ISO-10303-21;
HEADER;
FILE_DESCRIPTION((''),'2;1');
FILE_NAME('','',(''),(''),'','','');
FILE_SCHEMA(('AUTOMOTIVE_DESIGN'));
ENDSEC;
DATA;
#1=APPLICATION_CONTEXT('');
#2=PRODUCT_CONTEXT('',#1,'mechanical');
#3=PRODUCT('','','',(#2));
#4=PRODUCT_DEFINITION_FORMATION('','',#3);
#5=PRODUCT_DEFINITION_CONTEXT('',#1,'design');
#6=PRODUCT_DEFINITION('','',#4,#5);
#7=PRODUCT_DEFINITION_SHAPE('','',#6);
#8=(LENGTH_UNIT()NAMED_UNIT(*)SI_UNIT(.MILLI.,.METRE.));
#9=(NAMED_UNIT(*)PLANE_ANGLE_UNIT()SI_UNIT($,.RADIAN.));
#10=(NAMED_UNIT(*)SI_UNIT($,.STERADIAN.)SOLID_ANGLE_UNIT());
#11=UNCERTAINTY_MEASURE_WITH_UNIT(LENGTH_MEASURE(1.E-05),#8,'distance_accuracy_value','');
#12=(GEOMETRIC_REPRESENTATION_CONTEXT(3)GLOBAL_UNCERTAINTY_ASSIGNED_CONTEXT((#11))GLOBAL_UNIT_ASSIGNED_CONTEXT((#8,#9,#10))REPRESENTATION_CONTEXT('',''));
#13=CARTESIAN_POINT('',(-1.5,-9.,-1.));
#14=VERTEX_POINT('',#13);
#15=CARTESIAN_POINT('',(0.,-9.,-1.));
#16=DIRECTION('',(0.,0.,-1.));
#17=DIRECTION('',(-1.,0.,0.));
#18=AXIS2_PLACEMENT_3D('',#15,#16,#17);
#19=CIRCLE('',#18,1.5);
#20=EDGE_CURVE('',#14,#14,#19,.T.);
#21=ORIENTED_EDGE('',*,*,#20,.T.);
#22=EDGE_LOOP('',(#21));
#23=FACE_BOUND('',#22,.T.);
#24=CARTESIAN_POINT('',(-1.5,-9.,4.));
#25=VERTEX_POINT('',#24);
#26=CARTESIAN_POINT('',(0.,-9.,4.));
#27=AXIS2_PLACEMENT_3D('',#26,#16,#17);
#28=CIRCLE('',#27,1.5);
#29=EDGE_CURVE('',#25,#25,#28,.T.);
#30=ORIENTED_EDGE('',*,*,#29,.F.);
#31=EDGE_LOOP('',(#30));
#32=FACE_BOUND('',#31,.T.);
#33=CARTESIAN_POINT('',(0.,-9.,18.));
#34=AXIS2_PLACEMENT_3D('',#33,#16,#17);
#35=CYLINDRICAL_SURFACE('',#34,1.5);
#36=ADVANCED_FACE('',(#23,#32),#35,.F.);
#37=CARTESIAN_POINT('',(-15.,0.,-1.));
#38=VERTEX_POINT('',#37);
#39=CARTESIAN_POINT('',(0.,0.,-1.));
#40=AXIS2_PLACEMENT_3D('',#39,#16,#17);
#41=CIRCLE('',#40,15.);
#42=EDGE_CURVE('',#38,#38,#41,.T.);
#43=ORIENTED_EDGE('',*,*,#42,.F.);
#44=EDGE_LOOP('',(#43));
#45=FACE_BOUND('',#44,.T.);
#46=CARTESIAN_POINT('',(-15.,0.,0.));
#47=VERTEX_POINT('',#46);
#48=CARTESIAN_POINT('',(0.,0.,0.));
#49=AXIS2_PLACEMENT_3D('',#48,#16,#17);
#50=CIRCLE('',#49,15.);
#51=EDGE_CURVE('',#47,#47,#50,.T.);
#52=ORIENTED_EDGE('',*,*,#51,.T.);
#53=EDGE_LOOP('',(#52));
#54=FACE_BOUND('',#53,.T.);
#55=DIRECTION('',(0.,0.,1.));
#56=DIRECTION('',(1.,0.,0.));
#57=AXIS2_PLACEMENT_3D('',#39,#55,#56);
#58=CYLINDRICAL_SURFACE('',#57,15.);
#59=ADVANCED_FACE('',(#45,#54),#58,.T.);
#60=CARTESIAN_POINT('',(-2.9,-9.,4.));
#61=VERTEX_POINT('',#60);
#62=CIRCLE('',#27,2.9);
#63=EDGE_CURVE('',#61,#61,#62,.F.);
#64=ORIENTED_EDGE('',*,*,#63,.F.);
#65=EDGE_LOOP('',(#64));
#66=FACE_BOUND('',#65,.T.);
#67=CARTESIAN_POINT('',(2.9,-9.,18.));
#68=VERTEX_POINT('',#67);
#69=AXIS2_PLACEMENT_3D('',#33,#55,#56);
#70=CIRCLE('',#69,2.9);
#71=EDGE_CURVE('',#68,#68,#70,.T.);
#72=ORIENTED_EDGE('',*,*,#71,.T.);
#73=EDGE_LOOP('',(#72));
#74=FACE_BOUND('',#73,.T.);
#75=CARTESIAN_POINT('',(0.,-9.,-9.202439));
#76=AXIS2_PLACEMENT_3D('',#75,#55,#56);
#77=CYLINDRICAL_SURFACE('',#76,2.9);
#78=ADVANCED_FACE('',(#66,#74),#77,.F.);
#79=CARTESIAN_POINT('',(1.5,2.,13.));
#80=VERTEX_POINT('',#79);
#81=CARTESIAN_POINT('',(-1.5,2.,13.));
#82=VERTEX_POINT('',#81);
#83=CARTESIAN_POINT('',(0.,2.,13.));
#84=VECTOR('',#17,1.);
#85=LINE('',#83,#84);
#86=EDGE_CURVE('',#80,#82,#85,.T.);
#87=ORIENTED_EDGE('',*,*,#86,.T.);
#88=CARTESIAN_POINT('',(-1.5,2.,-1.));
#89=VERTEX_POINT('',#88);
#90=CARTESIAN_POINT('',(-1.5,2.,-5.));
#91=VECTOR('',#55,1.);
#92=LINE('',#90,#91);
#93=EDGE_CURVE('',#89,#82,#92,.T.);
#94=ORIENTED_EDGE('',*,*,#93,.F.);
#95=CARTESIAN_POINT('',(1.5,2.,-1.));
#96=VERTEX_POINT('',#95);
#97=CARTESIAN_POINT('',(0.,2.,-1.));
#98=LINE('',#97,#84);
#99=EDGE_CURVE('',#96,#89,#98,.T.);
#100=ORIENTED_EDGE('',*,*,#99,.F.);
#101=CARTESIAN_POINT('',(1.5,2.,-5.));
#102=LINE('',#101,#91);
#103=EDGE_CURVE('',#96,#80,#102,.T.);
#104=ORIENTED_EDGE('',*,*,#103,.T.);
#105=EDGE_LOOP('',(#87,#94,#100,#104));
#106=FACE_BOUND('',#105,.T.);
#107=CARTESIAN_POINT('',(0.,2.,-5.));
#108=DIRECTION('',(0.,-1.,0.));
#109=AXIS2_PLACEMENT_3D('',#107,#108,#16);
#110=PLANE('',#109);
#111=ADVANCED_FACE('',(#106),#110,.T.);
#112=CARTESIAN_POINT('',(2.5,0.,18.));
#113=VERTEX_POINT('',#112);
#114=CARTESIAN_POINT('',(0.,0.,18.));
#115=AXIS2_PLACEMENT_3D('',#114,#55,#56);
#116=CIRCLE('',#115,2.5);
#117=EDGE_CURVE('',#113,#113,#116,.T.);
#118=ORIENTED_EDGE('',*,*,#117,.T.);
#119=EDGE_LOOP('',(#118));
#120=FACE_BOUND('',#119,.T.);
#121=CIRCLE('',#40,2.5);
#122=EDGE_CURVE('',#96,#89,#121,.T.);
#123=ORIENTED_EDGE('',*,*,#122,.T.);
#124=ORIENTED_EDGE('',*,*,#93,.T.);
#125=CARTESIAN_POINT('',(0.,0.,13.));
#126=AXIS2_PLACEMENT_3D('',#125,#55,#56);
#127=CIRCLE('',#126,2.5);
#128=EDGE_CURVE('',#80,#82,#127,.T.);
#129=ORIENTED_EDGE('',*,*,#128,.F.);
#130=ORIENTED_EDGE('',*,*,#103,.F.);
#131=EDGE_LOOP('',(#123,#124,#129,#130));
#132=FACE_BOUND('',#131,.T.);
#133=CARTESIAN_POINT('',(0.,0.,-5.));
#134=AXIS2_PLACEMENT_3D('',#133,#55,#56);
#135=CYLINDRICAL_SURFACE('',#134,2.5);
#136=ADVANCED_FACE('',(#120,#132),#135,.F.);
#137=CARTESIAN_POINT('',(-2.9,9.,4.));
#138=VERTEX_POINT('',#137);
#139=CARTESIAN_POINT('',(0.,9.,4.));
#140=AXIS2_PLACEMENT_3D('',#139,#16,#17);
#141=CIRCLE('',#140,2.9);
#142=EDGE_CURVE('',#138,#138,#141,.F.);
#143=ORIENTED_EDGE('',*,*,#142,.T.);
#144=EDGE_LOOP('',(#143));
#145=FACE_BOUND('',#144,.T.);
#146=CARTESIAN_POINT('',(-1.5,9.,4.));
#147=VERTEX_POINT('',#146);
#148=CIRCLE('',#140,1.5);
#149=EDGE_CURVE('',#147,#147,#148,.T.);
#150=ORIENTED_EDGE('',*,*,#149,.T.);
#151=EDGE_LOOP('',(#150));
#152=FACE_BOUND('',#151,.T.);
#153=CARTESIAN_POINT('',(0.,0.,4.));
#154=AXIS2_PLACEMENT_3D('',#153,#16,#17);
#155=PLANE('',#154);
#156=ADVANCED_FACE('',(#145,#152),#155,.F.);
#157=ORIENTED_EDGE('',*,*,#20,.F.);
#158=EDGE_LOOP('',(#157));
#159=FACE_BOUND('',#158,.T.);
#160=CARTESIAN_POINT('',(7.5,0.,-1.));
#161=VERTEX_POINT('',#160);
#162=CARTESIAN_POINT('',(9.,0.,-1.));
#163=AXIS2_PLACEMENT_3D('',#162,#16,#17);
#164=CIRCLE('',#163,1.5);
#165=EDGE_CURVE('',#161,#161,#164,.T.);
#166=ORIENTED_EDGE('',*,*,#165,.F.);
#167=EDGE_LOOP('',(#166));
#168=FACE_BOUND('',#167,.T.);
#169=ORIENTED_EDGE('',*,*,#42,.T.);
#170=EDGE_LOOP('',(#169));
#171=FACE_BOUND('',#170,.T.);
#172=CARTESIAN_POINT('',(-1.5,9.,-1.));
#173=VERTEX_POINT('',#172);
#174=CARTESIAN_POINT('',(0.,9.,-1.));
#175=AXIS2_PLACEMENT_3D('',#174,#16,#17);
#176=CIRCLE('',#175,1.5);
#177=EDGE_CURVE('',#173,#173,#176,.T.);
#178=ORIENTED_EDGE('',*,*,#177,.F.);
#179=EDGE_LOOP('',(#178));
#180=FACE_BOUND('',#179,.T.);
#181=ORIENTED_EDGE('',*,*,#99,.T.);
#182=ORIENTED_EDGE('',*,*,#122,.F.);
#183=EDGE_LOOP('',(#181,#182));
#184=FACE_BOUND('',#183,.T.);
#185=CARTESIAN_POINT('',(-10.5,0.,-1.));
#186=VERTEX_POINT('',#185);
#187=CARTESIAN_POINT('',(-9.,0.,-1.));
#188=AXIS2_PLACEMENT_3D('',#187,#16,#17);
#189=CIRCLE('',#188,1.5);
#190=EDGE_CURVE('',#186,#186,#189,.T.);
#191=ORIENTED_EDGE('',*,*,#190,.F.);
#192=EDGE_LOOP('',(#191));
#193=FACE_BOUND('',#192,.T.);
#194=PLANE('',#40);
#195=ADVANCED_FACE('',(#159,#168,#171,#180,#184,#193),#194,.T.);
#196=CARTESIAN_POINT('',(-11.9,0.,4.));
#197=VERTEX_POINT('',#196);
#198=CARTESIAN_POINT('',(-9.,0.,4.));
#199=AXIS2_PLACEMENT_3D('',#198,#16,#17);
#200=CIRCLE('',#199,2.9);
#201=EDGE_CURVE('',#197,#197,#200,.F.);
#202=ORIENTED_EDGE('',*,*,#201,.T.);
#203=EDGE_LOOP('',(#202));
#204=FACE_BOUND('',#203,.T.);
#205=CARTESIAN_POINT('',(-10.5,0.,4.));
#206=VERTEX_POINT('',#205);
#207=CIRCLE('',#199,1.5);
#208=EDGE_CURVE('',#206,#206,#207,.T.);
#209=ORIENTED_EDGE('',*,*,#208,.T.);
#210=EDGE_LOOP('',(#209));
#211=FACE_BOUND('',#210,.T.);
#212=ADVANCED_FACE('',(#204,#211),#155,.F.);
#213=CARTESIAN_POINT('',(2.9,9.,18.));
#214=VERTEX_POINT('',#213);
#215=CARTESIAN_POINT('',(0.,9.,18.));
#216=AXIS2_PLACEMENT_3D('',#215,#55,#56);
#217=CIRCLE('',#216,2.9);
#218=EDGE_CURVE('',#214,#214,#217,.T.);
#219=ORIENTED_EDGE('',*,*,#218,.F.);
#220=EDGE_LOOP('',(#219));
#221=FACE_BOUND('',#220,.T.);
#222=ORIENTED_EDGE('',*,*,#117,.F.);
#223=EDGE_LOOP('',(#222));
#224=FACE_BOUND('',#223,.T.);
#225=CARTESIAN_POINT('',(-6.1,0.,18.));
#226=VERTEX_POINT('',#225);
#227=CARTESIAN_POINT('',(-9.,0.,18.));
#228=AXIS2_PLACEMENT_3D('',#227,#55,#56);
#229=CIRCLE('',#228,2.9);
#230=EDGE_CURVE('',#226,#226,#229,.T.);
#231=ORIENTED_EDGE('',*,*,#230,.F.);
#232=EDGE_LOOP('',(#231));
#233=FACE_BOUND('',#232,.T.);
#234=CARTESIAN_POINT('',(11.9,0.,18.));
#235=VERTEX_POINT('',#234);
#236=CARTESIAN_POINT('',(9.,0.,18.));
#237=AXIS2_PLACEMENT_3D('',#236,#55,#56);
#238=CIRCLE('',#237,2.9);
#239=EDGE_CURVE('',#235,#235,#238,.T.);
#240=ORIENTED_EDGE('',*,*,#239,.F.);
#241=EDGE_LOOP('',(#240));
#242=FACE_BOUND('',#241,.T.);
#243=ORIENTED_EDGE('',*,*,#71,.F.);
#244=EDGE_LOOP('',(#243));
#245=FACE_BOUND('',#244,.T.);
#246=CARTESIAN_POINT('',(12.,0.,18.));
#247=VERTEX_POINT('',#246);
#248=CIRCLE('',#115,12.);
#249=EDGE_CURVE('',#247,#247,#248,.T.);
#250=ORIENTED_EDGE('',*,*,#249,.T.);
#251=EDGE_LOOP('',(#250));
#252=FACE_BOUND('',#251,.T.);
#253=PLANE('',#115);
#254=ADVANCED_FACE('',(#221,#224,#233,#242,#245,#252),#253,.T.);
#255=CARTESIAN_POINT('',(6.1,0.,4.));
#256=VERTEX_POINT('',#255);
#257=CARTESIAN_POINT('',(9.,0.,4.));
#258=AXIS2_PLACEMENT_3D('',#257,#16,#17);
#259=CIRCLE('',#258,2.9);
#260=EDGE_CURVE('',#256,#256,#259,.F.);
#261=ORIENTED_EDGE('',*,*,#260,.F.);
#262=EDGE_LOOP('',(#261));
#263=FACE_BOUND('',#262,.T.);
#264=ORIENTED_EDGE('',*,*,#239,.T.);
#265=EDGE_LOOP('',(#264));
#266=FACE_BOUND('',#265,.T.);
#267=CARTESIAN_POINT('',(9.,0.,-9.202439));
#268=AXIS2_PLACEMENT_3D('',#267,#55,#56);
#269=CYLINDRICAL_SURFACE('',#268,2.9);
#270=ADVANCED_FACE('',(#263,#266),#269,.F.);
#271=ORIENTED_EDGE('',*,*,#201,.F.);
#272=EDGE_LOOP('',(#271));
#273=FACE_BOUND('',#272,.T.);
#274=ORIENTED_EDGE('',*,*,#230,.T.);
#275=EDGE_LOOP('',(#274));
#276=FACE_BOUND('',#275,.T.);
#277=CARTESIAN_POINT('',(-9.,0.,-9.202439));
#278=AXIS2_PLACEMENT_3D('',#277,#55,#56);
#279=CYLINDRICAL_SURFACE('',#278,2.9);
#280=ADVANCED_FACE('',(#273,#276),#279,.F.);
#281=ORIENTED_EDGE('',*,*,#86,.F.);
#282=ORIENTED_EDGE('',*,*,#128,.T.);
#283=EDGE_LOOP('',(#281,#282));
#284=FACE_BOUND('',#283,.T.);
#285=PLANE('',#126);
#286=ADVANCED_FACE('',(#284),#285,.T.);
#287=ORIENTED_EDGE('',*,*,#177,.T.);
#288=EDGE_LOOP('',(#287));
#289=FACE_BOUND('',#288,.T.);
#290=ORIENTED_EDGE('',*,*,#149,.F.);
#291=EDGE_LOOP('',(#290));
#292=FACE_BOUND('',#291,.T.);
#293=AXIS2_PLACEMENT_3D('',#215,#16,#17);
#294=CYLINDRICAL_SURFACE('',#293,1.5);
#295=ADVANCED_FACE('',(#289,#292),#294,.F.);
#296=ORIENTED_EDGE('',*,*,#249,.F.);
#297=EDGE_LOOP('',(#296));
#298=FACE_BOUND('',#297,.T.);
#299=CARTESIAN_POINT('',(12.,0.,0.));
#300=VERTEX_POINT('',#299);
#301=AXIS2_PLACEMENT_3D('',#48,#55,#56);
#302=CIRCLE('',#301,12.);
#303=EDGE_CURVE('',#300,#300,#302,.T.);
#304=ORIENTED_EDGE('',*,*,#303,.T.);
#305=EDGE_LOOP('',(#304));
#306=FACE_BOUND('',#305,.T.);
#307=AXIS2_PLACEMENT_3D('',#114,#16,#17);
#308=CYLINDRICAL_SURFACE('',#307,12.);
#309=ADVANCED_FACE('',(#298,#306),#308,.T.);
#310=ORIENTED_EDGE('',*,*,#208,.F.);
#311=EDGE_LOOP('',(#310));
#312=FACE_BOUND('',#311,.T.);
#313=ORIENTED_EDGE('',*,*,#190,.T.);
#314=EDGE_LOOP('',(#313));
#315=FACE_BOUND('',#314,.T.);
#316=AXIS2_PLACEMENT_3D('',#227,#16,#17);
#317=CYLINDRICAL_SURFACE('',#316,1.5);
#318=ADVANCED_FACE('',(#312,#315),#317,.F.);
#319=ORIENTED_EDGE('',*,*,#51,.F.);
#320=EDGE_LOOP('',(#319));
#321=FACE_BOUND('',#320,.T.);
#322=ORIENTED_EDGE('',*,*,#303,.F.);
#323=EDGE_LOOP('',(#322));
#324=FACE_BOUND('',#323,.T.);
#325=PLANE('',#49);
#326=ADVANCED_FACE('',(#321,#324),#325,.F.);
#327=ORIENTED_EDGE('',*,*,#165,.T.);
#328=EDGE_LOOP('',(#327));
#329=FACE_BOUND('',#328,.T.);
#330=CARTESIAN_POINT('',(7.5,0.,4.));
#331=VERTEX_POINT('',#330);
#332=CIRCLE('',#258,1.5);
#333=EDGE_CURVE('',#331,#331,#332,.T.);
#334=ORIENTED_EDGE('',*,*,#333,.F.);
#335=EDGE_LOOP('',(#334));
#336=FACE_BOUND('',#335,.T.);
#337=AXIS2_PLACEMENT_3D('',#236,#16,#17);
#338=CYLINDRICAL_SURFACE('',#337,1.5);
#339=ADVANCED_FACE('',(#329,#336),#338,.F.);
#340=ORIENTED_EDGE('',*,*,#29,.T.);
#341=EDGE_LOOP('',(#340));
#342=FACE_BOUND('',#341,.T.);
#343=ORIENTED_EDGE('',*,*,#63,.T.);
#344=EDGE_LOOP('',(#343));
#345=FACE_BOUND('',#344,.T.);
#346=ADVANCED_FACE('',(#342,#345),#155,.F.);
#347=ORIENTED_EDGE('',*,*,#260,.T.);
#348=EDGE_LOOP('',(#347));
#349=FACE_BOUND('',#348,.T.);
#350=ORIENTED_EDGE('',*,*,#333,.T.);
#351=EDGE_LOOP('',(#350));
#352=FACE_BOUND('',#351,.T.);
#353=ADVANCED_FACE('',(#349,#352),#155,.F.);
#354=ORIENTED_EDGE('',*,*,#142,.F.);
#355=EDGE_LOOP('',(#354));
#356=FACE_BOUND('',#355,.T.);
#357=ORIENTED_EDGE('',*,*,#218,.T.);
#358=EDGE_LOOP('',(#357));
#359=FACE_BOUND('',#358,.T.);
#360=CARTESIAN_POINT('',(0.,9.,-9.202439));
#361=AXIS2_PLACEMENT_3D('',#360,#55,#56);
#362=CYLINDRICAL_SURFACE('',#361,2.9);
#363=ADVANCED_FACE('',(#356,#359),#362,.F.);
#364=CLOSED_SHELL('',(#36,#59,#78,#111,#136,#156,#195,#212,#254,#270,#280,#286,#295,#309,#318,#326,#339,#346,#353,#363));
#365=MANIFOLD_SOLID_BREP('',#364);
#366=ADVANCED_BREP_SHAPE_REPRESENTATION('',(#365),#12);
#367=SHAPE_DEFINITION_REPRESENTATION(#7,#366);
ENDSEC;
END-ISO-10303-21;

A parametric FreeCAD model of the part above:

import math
import FreeCAD as App
import Part
import Sketcher

V = App.Vector
Q = App.Units.Quantity

doc = App.newDocument("Part")
body = doc.addObject("PartDesign::Body", "Body")

sketch1 = body.newObject("Sketcher::SketchObject", "Sketch")
sketch1.AttachmentSupport = (doc.getObject("XY_Plane"), [""])
sketch1.MapMode = "FlatFace"
sketch1.addGeometry(Part.Circle(V(0, 0, 0), V(0, 0, 1), 12), False)
sketch1.addGeometry(Part.Circle(V(0, -9, 0), V(0, 0, 1), 1.5), False)
sketch1.addGeometry(Part.Circle(V(-9, 0, 0), V(0, 0, 1), 1.5), False)
sketch1.addGeometry(Part.Circle(V(9, 0, 0), V(0, 0, 1), 1.5), False)
sketch1.addGeometry(Part.Circle(V(0, 9, 0), V(0, 0, 1), 1.5), False)
sketch1.addConstraint(Sketcher.Constraint("Coincident", 0, 3, -1, 1))
sketch1.addConstraint(Sketcher.Constraint("Equal", 1, 2))
sketch1.addConstraint(Sketcher.Constraint("Equal", 2, 3))
sketch1.addConstraint(Sketcher.Constraint("Equal", 3, 4))
sketch1.addConstraint(Sketcher.Constraint("Symmetric", 2, 3, 3, 3, -1, 1))
sketch1.addConstraint(Sketcher.Constraint("Symmetric", 1, 3, 4, 3, -1, 1))
sketch1.addConstraint(Sketcher.Constraint("PointOnObject", 1, 3, -2))
sketch1.addConstraint(Sketcher.Constraint("PointOnObject", 2, 3, -1))
sketch1.addConstraint(Sketcher.Constraint("Diameter", 0, Q("24 mm")))
sketch1.addConstraint(Sketcher.Constraint("Diameter", 1, Q("3 mm")))
sketch1.addConstraint(Sketcher.Constraint("DistanceY", 1, 3, -1, 1, Q("9 mm")))
sketch1.addConstraint(Sketcher.Constraint("DistanceX", 2, 3, -1, 1, Q("9 mm")))
pad1 = body.newObject("PartDesign::Pad", "Pad")
pad1.Profile = sketch1
pad1.Length = 18

sketch2 = body.newObject("Sketcher::SketchObject", "Sketch001")
sketch2.AttachmentSupport = (doc.getObject("XY_Plane"), [""])
sketch2.MapMode = "FlatFace"
sketch2.AttachmentOffset = App.Placement(V(0, 0, -1), App.Rotation())
sketch2.addGeometry(Part.Circle(V(0, 0, 0), V(0, 0, 1), 15), False)
sketch2.addGeometry(Part.Circle(V(0, -9, 0), V(0, 0, 1), 1.5), False)
sketch2.addGeometry(Part.Circle(V(9, 0, 0), V(0, 0, 1), 1.5), False)
sketch2.addGeometry(Part.Circle(V(-9, 0, 0), V(0, 0, 1), 1.5), False)
sketch2.addGeometry(Part.Circle(V(0, 9, 0), V(0, 0, 1), 1.5), False)
sketch2.addConstraint(Sketcher.Constraint("Coincident", 0, 3, -1, 1))
sketch2.addConstraint(Sketcher.Constraint("Equal", 1, 2))
sketch2.addConstraint(Sketcher.Constraint("Equal", 2, 3))
sketch2.addConstraint(Sketcher.Constraint("Equal", 3, 4))
sketch2.addConstraint(Sketcher.Constraint("Symmetric", 2, 3, 3, 3, -1, 1))
sketch2.addConstraint(Sketcher.Constraint("Symmetric", 1, 3, 4, 3, -1, 1))
sketch2.addConstraint(Sketcher.Constraint("PointOnObject", 1, 3, -2))
sketch2.addConstraint(Sketcher.Constraint("PointOnObject", 2, 3, -1))
sketch2.addConstraint(Sketcher.Constraint("Diameter", 0, Q("30 mm")))
sketch2.addConstraint(Sketcher.Constraint("Diameter", 1, Q("3 mm")))
sketch2.addConstraint(Sketcher.Constraint("DistanceY", 1, 3, -1, 1, Q("9 mm")))
sketch2.addConstraint(Sketcher.Constraint("DistanceX", -1, 1, 2, 3, Q("9 mm")))
pad2 = body.newObject("PartDesign::Pad", "Pad001")
pad2.Profile = sketch2
pad2.Length = 1

sketch3 = body.newObject("Sketcher::SketchObject", "Sketch002")
sketch3.AttachmentSupport = (doc.getObject("XY_Plane"), [""])
sketch3.MapMode = "FlatFace"
sketch3.AttachmentOffset = App.Placement(V(0, 0, 18), App.Rotation())
sketch3.addGeometry(Part.Circle(V(0, 9, 0), V(0, 0, 1), 2.9), False)
sketch3.addGeometry(Part.Circle(V(9, 0, 0), V(0, 0, 1), 2.9), False)
sketch3.addGeometry(Part.Circle(V(0, -9, 0), V(0, 0, 1), 2.9), False)
sketch3.addGeometry(Part.Circle(V(-9, 0, 0), V(0, 0, 1), 2.9), False)
sketch3.addConstraint(Sketcher.Constraint("Equal", 0, 1))
sketch3.addConstraint(Sketcher.Constraint("Equal", 1, 2))
sketch3.addConstraint(Sketcher.Constraint("Equal", 2, 3))
sketch3.addConstraint(Sketcher.Constraint("Symmetric", 0, 3, 2, 3, -1, 1))
sketch3.addConstraint(Sketcher.Constraint("Symmetric", 1, 3, 3, 3, -1, 1))
sketch3.addConstraint(Sketcher.Constraint("PointOnObject", 0, 3, -2))
sketch3.addConstraint(Sketcher.Constraint("PointOnObject", 1, 3, -1))
sketch3.addConstraint(Sketcher.Constraint("Diameter", 0, Q("5.8 mm")))
sketch3.addConstraint(Sketcher.Constraint("DistanceY", -1, 1, 0, 3, Q("9 mm")))
sketch3.addConstraint(Sketcher.Constraint("DistanceX", -1, 1, 1, 3, Q("9 mm")))
pocket1 = body.newObject("PartDesign::Pocket", "Pocket")
pocket1.Profile = sketch3
pocket1.Length = 14

sketch4 = body.newObject("Sketcher::SketchObject", "Sketch003")
sketch4.AttachmentSupport = (doc.getObject("XY_Plane"), [""])
sketch4.MapMode = "FlatFace"
sketch4.AttachmentOffset = App.Placement(V(0, 0, 18), App.Rotation())
sketch4.addGeometry(Part.LineSegment(V(1.5, 2, 0), V(-1.5, 2, 0)), False)
sketch4.addGeometry(Part.ArcOfCircle(Part.Circle(V(0, 0, 0), V(0, 0, 1), 2.5), math.radians(127), math.radians(360)), False)
sketch4.addGeometry(Part.ArcOfCircle(Part.Circle(V(0, 0, 0), V(0, 0, 1), 2.5), math.radians(0), math.radians(53)), False)
sketch4.addConstraint(Sketcher.Constraint("Coincident", 0, 2, 1, 1))
sketch4.addConstraint(Sketcher.Constraint("Tangent", 1, 2, 2, 1))
sketch4.addConstraint(Sketcher.Constraint("Coincident", 2, 2, 0, 1))
sketch4.addConstraint(Sketcher.Constraint("Horizontal", 0))
sketch4.addConstraint(Sketcher.Constraint("Coincident", 1, 3, -1, 1))
sketch4.addConstraint(Sketcher.Constraint("Equal", 1, 2))
sketch4.addConstraint(Sketcher.Constraint("PointOnObject", 1, 2, -1))
sketch4.addConstraint(Sketcher.Constraint("Radius", 1, Q("2.5 mm")))
sketch4.addConstraint(Sketcher.Constraint("DistanceX", 0, 2, 0, 1, Q("3 mm")))
pocket2 = body.newObject("PartDesign::Pocket", "Pocket001")
pocket2.Profile = sketch4
pocket2.Length = 23

sketch5 = body.newObject("Sketcher::SketchObject", "Sketch004")
sketch5.AttachmentSupport = (doc.getObject("XY_Plane"), [""])
sketch5.MapMode = "FlatFace"
sketch5.AttachmentOffset = App.Placement(V(0, 0, 18), App.Rotation())
sketch5.addGeometry(Part.Circle(V(0, 0, 0), V(0, 0, 1), 2.5), False)
sketch5.addConstraint(Sketcher.Constraint("Coincident", 0, 3, -1, 1))
sketch5.addConstraint(Sketcher.Constraint("Diameter", 0, Q("5 mm")))
pocket3 = body.newObject("PartDesign::Pocket", "Pocket002")
pocket3.Profile = sketch5
pocket3.Length = 5

doc.recompute()
